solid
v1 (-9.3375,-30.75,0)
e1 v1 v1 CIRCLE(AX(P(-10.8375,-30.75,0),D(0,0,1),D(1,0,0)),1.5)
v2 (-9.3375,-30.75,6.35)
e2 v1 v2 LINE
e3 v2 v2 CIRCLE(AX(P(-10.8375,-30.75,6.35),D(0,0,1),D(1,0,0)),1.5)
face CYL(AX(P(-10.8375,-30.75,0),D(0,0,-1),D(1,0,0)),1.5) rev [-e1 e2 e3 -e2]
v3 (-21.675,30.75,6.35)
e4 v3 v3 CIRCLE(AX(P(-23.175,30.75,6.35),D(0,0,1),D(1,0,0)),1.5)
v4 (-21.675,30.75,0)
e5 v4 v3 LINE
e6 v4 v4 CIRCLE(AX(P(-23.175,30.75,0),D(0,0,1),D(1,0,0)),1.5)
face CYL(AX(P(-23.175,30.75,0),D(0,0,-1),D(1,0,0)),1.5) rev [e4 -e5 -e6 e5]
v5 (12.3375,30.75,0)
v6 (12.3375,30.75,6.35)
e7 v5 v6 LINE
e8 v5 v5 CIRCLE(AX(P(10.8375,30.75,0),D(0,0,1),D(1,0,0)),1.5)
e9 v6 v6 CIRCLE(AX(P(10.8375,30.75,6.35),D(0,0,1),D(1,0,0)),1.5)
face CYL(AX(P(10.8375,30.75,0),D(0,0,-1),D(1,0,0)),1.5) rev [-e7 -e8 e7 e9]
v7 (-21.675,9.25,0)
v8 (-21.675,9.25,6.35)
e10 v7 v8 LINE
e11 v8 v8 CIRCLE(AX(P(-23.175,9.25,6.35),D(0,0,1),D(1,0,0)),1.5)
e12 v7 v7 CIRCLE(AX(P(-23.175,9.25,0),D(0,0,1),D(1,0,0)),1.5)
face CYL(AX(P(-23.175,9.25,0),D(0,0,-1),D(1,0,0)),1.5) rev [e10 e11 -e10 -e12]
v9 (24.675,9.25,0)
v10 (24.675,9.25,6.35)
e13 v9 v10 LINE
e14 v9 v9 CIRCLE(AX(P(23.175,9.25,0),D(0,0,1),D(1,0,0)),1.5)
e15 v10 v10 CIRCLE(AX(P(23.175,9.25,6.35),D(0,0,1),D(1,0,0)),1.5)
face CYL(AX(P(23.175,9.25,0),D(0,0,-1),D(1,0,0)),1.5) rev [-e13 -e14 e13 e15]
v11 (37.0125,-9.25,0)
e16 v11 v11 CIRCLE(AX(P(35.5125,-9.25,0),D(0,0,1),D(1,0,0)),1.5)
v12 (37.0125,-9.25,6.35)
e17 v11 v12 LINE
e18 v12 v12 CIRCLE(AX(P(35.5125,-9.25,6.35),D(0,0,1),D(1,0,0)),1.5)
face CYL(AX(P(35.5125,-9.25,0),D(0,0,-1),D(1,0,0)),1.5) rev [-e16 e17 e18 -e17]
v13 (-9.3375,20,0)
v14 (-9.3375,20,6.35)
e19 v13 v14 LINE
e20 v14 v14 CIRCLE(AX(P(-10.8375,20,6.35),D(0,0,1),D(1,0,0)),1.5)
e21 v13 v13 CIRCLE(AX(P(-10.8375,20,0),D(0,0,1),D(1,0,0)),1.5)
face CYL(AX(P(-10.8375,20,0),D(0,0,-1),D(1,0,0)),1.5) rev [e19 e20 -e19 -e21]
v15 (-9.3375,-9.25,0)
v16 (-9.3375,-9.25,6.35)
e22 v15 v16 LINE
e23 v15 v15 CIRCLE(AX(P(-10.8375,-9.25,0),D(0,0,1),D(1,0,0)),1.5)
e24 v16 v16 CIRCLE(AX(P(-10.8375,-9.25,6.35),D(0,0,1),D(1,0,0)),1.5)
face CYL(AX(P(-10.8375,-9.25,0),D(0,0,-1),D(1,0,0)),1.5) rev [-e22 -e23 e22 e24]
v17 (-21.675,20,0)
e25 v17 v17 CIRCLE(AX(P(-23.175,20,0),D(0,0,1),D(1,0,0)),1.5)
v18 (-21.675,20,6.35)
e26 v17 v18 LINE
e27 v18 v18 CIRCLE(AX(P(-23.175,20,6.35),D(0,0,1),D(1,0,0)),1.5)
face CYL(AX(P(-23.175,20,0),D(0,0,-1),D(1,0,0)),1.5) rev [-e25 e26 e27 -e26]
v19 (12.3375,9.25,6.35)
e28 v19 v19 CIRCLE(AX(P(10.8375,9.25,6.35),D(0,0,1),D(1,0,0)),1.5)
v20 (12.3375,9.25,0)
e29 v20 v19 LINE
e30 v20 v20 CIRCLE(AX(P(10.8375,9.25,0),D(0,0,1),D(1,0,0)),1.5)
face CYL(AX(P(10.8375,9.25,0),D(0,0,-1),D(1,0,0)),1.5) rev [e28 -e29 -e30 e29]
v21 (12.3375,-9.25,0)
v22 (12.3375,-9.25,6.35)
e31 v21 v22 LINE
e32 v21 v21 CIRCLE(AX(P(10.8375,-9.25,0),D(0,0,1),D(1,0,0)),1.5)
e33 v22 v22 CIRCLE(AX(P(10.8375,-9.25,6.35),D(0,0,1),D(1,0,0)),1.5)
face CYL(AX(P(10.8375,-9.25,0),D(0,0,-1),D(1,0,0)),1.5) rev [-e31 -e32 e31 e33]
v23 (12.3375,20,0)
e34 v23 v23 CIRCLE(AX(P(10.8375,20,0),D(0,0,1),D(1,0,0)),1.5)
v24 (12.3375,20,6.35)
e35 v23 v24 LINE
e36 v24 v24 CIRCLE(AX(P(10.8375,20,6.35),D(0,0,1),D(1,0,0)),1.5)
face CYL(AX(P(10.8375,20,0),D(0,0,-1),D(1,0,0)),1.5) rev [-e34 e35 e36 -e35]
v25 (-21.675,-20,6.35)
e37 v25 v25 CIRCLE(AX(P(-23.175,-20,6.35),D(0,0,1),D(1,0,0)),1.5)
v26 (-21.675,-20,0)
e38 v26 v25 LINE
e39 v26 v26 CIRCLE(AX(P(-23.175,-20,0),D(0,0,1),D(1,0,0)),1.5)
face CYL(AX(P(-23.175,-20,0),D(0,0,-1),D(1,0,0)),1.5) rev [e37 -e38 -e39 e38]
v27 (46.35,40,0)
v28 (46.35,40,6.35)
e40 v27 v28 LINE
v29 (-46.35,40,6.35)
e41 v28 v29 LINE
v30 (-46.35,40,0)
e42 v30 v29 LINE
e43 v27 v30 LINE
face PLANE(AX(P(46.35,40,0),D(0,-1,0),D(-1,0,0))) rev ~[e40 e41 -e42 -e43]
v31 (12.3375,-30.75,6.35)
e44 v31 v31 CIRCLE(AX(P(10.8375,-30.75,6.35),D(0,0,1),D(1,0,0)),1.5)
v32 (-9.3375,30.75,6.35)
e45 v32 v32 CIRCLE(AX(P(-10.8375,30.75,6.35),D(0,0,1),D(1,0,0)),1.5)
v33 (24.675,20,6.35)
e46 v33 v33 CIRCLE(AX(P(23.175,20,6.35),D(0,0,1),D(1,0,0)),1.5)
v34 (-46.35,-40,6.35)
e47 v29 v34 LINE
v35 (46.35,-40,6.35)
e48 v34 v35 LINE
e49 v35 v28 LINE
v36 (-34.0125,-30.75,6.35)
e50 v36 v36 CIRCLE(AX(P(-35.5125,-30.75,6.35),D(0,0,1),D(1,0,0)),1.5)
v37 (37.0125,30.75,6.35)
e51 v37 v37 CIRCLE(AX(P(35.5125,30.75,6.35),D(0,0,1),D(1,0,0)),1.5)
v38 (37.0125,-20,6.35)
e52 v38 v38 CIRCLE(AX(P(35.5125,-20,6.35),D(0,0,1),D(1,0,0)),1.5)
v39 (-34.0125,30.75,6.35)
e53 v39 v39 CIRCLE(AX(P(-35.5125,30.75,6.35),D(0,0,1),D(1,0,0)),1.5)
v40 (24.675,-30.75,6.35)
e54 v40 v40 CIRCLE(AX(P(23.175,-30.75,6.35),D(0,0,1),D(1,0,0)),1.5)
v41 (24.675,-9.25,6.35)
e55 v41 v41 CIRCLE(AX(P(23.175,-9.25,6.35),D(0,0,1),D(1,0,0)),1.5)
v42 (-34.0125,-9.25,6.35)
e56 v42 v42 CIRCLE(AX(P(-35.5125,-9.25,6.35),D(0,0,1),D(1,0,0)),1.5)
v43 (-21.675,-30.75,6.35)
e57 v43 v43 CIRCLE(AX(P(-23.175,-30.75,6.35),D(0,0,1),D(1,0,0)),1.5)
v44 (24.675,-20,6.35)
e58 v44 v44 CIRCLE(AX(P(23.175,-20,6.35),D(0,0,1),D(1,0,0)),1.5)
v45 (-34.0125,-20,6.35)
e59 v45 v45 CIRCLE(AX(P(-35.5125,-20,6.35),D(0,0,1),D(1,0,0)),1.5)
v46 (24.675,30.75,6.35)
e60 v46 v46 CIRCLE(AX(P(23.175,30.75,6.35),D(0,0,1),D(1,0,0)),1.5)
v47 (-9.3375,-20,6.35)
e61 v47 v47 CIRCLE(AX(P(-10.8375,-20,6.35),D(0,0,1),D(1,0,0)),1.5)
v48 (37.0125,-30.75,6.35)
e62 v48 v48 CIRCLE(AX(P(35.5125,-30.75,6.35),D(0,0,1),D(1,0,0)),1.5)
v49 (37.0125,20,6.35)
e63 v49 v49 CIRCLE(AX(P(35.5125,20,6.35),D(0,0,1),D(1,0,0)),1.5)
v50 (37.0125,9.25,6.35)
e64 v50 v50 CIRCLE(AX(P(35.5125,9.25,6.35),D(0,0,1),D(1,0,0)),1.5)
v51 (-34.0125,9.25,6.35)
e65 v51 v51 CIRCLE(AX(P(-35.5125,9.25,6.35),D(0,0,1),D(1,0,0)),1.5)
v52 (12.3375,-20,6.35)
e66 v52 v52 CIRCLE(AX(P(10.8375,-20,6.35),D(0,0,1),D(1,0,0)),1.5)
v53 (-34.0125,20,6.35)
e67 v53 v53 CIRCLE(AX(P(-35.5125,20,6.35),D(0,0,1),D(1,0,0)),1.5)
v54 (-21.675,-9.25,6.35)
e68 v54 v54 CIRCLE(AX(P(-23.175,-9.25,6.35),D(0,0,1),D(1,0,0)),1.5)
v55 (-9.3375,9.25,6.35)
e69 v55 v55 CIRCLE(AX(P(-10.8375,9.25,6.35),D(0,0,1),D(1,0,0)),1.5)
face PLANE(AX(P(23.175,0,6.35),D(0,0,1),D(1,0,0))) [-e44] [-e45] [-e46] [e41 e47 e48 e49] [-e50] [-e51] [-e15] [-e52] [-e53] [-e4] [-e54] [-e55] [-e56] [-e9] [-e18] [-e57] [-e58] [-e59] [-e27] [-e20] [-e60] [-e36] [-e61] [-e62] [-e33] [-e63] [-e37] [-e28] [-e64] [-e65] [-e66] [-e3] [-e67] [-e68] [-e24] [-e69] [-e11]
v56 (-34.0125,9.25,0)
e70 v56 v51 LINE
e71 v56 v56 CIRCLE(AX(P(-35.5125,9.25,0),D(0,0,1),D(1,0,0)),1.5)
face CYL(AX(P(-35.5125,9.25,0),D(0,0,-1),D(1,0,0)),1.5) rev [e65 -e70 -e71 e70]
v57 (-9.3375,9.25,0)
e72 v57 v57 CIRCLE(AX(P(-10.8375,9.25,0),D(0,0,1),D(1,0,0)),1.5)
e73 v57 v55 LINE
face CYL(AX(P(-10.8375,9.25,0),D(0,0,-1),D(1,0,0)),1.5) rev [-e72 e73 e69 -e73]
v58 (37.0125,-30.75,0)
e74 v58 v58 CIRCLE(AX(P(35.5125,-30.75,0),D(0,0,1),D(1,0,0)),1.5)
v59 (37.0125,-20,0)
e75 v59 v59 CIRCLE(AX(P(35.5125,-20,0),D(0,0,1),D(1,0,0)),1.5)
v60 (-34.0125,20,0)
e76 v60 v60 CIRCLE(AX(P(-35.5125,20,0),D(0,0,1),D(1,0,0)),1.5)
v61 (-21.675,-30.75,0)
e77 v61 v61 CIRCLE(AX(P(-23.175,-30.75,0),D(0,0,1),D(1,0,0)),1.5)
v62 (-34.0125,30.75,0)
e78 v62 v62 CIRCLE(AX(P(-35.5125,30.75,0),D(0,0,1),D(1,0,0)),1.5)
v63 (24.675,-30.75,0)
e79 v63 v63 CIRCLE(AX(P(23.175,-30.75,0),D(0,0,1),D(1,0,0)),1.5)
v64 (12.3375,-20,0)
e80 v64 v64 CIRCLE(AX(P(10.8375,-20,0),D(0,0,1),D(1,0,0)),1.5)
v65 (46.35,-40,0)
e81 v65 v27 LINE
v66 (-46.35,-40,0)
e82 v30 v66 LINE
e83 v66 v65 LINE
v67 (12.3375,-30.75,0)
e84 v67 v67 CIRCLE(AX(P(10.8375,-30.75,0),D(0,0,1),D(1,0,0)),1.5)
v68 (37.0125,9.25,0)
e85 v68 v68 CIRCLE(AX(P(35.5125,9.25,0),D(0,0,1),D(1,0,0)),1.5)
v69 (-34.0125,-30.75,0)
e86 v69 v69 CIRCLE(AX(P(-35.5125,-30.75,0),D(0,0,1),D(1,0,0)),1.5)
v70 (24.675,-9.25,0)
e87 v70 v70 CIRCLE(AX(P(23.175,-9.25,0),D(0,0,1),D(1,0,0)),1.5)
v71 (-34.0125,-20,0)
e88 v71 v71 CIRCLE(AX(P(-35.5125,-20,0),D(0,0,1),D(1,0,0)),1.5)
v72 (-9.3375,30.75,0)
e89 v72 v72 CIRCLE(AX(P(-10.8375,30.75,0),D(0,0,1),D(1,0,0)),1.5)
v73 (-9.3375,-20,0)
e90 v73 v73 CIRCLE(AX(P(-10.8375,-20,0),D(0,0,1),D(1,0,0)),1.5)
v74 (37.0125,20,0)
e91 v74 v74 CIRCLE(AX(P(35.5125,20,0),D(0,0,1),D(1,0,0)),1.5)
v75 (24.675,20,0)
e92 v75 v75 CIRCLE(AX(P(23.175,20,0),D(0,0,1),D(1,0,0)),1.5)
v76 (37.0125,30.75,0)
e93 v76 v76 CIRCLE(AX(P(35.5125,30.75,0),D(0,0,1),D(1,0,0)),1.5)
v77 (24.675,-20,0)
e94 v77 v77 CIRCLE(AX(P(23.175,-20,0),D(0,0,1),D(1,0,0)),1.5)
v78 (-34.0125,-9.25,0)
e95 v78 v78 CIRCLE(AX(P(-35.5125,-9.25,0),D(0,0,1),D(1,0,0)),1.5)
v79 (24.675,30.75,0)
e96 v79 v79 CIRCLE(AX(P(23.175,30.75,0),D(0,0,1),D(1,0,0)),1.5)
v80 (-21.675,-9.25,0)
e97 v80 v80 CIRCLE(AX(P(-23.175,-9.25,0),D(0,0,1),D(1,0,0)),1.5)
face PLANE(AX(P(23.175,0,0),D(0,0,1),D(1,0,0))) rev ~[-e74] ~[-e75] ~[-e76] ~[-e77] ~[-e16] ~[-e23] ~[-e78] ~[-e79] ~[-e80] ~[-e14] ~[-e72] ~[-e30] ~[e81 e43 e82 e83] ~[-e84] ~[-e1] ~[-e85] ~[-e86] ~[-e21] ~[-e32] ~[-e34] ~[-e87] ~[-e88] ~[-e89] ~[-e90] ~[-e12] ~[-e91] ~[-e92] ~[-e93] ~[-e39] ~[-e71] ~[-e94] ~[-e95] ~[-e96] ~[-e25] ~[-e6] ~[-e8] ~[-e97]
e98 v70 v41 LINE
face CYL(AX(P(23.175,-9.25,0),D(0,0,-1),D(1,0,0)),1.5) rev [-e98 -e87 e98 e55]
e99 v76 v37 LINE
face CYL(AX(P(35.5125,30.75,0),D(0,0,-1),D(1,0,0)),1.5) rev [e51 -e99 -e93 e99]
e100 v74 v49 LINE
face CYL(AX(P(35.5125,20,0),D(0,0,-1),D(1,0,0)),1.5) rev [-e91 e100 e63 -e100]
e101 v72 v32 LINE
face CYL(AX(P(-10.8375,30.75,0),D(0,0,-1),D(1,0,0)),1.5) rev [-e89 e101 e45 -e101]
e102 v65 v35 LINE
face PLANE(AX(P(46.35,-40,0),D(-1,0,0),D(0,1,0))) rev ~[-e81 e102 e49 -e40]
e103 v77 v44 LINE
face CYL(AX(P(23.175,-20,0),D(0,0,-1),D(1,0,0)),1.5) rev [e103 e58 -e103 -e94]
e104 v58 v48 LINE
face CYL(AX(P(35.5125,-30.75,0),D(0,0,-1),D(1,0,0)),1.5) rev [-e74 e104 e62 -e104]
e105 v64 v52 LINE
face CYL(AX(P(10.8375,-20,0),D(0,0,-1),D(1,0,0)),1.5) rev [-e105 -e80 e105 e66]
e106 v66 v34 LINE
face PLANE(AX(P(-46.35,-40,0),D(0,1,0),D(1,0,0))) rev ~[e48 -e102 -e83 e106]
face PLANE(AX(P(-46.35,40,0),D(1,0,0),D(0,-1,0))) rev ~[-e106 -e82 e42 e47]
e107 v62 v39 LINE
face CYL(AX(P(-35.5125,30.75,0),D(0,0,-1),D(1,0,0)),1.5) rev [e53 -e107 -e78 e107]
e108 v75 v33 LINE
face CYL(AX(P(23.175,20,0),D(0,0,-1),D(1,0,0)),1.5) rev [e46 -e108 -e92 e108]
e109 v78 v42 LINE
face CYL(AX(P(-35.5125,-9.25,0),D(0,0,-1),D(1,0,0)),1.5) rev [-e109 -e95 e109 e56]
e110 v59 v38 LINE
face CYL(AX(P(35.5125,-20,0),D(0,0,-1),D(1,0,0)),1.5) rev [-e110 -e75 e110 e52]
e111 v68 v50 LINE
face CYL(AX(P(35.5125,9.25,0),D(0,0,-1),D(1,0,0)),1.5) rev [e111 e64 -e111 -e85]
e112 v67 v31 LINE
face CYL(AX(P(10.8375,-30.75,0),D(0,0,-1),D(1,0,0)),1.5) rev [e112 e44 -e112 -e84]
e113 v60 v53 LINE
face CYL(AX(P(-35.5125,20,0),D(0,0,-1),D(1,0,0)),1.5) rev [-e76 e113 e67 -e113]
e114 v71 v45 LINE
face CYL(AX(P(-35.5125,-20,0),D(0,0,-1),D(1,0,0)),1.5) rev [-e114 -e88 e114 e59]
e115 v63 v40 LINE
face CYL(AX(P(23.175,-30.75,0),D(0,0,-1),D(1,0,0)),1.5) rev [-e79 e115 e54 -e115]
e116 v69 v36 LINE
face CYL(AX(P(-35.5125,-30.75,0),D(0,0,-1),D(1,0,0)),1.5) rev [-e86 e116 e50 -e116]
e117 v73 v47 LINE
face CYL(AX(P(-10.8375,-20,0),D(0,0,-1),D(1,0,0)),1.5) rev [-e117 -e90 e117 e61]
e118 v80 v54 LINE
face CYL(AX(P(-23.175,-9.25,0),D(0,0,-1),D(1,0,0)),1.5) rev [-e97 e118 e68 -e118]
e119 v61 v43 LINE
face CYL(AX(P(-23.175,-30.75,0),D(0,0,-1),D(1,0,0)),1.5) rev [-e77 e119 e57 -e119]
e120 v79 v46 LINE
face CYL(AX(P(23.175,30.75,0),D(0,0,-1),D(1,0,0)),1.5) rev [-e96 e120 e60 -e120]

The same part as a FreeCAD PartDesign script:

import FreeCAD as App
import Part
import Sketcher
Q = App.Units.Quantity

doc = App.newDocument("Part")
body = doc.addObject("PartDesign::Body", "Body")

# Sketch on XY plane
sketch1 = doc.addObject("Sketcher::SketchObject", "Sketch")
body.addObject(sketch1)
sketch1.AttachmentSupport = (doc.XY_Plane, [""])
sketch1.MapMode = "FlatFace"
sketch1.addGeometry([
    Part.LineSegment(App.Vector(46.4, 40, 0), App.Vector(-46.4, 40, 0)),  # 0
    Part.LineSegment(App.Vector(-46.4, 40, 0), App.Vector(-46.4, -40, 0)),  # 1
    Part.LineSegment(App.Vector(-46.4, -40, 0), App.Vector(46.4, -40, 0)),  # 2
    Part.LineSegment(App.Vector(46.4, -40, 0), App.Vector(46.4, 40, 0)),  # 3
    Part.Circle(App.Vector(-35.5, -30.8, 0), App.Vector(0, 0, 1), 1.5),  # 4
    Part.Circle(App.Vector(-23.2, -30.8, 0), App.Vector(0, 0, 1), 1.5),  # 5
    Part.Circle(App.Vector(-35.5, -20, 0), App.Vector(0, 0, 1), 1.5),  # 6
    Part.Circle(App.Vector(-23.2, -20, 0), App.Vector(0, 0, 1), 1.5),  # 7
    Part.Circle(App.Vector(-10.8, -30.8, 0), App.Vector(0, 0, 1), 1.5),  # 8
    Part.Circle(App.Vector(-10.8, -20, 0), App.Vector(0, 0, 1), 1.5),  # 9
    Part.Circle(App.Vector(-35.5, -9.2, 0), App.Vector(0, 0, 1), 1.5),  # 10
    Part.Circle(App.Vector(-23.2, -9.2, 0), App.Vector(0, 0, 1), 1.5),  # 11
    Part.Circle(App.Vector(-10.8, -9.2, 0), App.Vector(0, 0, 1), 1.5),  # 12
    Part.Circle(App.Vector(10.8, -30.8, 0), App.Vector(0, 0, 1), 1.5),  # 13
    Part.Circle(App.Vector(10.8, -20, 0), App.Vector(0, 0, 1), 1.5),  # 14
    Part.Circle(App.Vector(23.2, -30.8, 0), App.Vector(0, 0, 1), 1.5),  # 15
    Part.Circle(App.Vector(35.5, -30.8, 0), App.Vector(0, 0, 1), 1.5),  # 16
    Part.Circle(App.Vector(23.2, -20, 0), App.Vector(0, 0, 1), 1.5),  # 17
    Part.Circle(App.Vector(35.5, -20, 0), App.Vector(0, 0, 1), 1.5),  # 18
    Part.Circle(App.Vector(10.8, -9.2, 0), App.Vector(0, 0, 1), 1.5),  # 19
    Part.Circle(App.Vector(23.2, -9.2, 0), App.Vector(0, 0, 1), 1.5),  # 20
    Part.Circle(App.Vector(35.5, -9.2, 0), App.Vector(0, 0, 1), 1.5),  # 21
    Part.Circle(App.Vector(-35.5, 9.2, 0), App.Vector(0, 0, 1), 1.5),  # 22
    Part.Circle(App.Vector(-23.2, 9.2, 0), App.Vector(0, 0, 1), 1.5),  # 23
    Part.Circle(App.Vector(-10.8, 9.2, 0), App.Vector(0, 0, 1), 1.5),  # 24
    Part.Circle(App.Vector(-35.5, 20, 0), App.Vector(0, 0, 1), 1.5),  # 25
    Part.Circle(App.Vector(-23.2, 20, 0), App.Vector(0, 0, 1), 1.5),  # 26
    Part.Circle(App.Vector(-35.5, 30.8, 0), App.Vector(0, 0, 1), 1.5),  # 27
    Part.Circle(App.Vector(-23.2, 30.8, 0), App.Vector(0, 0, 1), 1.5),  # 28
    Part.Circle(App.Vector(-10.8, 20, 0), App.Vector(0, 0, 1), 1.5),  # 29
    Part.Circle(App.Vector(-10.8, 30.8, 0), App.Vector(0, 0, 1), 1.5),  # 30
    Part.Circle(App.Vector(10.8, 9.2, 0), App.Vector(0, 0, 1), 1.5),  # 31
    Part.Circle(App.Vector(23.2, 9.2, 0), App.Vector(0, 0, 1), 1.5),  # 32
    Part.Circle(App.Vector(35.5, 9.2, 0), App.Vector(0, 0, 1), 1.5),  # 33
    Part.Circle(App.Vector(10.8, 20, 0), App.Vector(0, 0, 1), 1.5),  # 34
    Part.Circle(App.Vector(10.8, 30.8, 0), App.Vector(0, 0, 1), 1.5),  # 35
    Part.Circle(App.Vector(23.2, 20, 0), App.Vector(0, 0, 1), 1.5),  # 36
    Part.Circle(App.Vector(35.5, 20, 0), App.Vector(0, 0, 1), 1.5),  # 37
    Part.Circle(App.Vector(23.2, 30.8, 0), App.Vector(0, 0, 1), 1.5),  # 38
    Part.Circle(App.Vector(35.5, 30.8, 0), App.Vector(0, 0, 1), 1.5),  # 39
], False)
sketch1.addConstraint([
    Sketcher.Constraint("Coincident", 0, 2, 1, 1),
    Sketcher.Constraint("Coincident", 1, 2, 2, 1),
    Sketcher.Constraint("Coincident", 2, 2, 3, 1),
    Sketcher.Constraint("Coincident", 3, 2, 0, 1),
    Sketcher.Constraint("Horizontal", 0),
    Sketcher.Constraint("Vertical", 1),
    Sketcher.Constraint("Horizontal", 2),
    Sketcher.Constraint("Vertical", 3),
    Sketcher.Constraint("Equal", 4, 5),
    Sketcher.Constraint("Equal", 5, 6),
    Sketcher.Constraint("Equal", 6, 7),
    Sketcher.Constraint("Equal", 7, 8),
    Sketcher.Constraint("Equal", 8, 9),
    Sketcher.Constraint("Equal", 9, 10),
    Sketcher.Constraint("Equal", 10, 11),
    Sketcher.Constraint("Equal", 11, 12),
    Sketcher.Constraint("Equal", 12, 13),
    Sketcher.Constraint("Equal", 13, 14),
    Sketcher.Constraint("Equal", 14, 15),
    Sketcher.Constraint("Equal", 15, 16),
    Sketcher.Constraint("Equal", 16, 17),
    Sketcher.Constraint("Equal", 17, 18),
    Sketcher.Constraint("Equal", 18, 19),
    Sketcher.Constraint("Equal", 19, 20),
    Sketcher.Constraint("Equal", 20, 21),
    Sketcher.Constraint("Equal", 21, 22),
    Sketcher.Constraint("Equal", 22, 23),
    Sketcher.Constraint("Equal", 23, 24),
    Sketcher.Constraint("Equal", 24, 25),
    Sketcher.Constraint("Equal", 25, 26),
    Sketcher.Constraint("Equal", 26, 27),
    Sketcher.Constraint("Equal", 27, 28),
    Sketcher.Constraint("Equal", 28, 29),
    Sketcher.Constraint("Equal", 29, 30),
    Sketcher.Constraint("Equal", 30, 31),
    Sketcher.Constraint("Equal", 31, 32),
    Sketcher.Constraint("Equal", 32, 33),
    Sketcher.Constraint("Equal", 33, 34),
    Sketcher.Constraint("Equal", 34, 35),
    Sketcher.Constraint("Equal", 35, 36),
    Sketcher.Constraint("Equal", 36, 37),
    Sketcher.Constraint("Equal", 37, 38),
    Sketcher.Constraint("Equal", 38, 39),
    Sketcher.Constraint("Symmetric", 21, 3, 22, 3, -1, 1),
    Sketcher.Constraint("Symmetric", 20, 3, 23, 3, -1, 1),
    Sketcher.Constraint("Symmetric", 19, 3, 24, 3, -1, 1),
    Sketcher.Constraint("Symmetric", 18, 3, 25, 3, -1, 1),
    Sketcher.Constraint("Symmetric", 17, 3, 26, 3, -1, 1),
    Sketcher.Constraint("Symmetric", 16, 3, 27, 3, -1, 1),
    Sketcher.Constraint("Symmetric", 15, 3, 28, 3, -1, 1),
    Sketcher.Constraint("Symmetric", 14, 3, 29, 3, -1, 1),
    Sketcher.Constraint("Symmetric", 13, 3, 30, 3, -1, 1),
    Sketcher.Constraint("Symmetric", 12, 3, 31, 3, -1, 1),
    Sketcher.Constraint("Symmetric", 11, 3, 32, 3, -1, 1),
    Sketcher.Constraint("Symmetric", 10, 3, 33, 3, -1, 1),
    Sketcher.Constraint("Symmetric", 9, 3, 34, 3, -1, 1),
    Sketcher.Constraint("Symmetric", 8, 3, 35, 3, -1, 1),
    Sketcher.Constraint("Symmetric", 7, 3, 36, 3, -1, 1),
    Sketcher.Constraint("Symmetric", 6, 3, 37, 3, -1, 1),
    Sketcher.Constraint("Symmetric", 5, 3, 38, 3, -1, 1),
    Sketcher.Constraint("Symmetric", 4, 3, 39, 3, -1, 1),
    Sketcher.Constraint("Symmetric", 0, 2, 2, 2, -1, 1),
    Sketcher.Constraint("Symmetric", 8, 3, 13, 3, -2),
    Sketcher.Constraint("Symmetric", 9, 3, 14, 3, -2),
    Sketcher.Constraint("Symmetric", 5, 3, 15, 3, -2),
    Sketcher.Constraint("Symmetric", 4, 3, 16, 3, -2),
    Sketcher.Constraint("Symmetric", 7, 3, 17, 3, -2),
    Sketcher.Constraint("Symmetric", 6, 3, 18, 3, -2),
    Sketcher.Constraint("Symmetric", 12, 3, 19, 3, -2),
    Sketcher.Constraint("Symmetric", 11, 3, 20, 3, -2),
    Sketcher.Constraint("Symmetric", 10, 3, 21, 3, -2),
    Sketcher.Constraint("Horizontal", 4, 3, 5, 3),
    Sketcher.Constraint("Horizontal", 6, 3, 7, 3),
    Sketcher.Constraint("Horizontal", 5, 3, 8, 3),
    Sketcher.Constraint("Horizontal", 7, 3, 9, 3),
    Sketcher.Constraint("Horizontal", 10, 3, 11, 3),
    Sketcher.Constraint("Horizontal", 11, 3, 12, 3),
    Sketcher.Constraint("Vertical", 4, 3, 6, 3),
    Sketcher.Constraint("Vertical", 5, 3, 7, 3),
    Sketcher.Constraint("Vertical", 8, 3, 9, 3),
    Sketcher.Constraint("Vertical", 6, 3, 10, 3),
    Sketcher.Constraint("Vertical", 7, 3, 11, 3),
    Sketcher.Constraint("Vertical", 9, 3, 12, 3),
    Sketcher.Constraint("Diameter", 4, Q("3 mm")),
    Sketcher.Constraint("DistanceY", 1, 2, 1, 1, Q("80 mm")),
    Sketcher.Constraint("DistanceX", 0, 2, 0, 1, Q("92.7 mm")),
    Sketcher.Constraint("DistanceY", 6, 3, -1, 1, Q("20 mm")),
    Sketcher.Constraint("DistanceY", 4, 3, 10, 3, Q("21.5 mm")),
    Sketcher.Constraint("DistanceY", 10, 3, 22, 3, Q("18.5 mm")),
    Sketcher.Constraint("DistanceX", 8, 3, 16, 3, Q("46.35 mm")),
    Sketcher.Constraint("DistanceX", 5, 3, -1, 1, Q("23.175 mm")),
    Sketcher.Constraint("DistanceX", 4, 3, 8, 3, Q("24.675 mm")),
])
pad1 = doc.addObject("PartDesign::Pad", "Pad")
body.addObject(pad1)
pad1.Profile = sketch1
pad1.Length = 6.35

doc.recompute()
